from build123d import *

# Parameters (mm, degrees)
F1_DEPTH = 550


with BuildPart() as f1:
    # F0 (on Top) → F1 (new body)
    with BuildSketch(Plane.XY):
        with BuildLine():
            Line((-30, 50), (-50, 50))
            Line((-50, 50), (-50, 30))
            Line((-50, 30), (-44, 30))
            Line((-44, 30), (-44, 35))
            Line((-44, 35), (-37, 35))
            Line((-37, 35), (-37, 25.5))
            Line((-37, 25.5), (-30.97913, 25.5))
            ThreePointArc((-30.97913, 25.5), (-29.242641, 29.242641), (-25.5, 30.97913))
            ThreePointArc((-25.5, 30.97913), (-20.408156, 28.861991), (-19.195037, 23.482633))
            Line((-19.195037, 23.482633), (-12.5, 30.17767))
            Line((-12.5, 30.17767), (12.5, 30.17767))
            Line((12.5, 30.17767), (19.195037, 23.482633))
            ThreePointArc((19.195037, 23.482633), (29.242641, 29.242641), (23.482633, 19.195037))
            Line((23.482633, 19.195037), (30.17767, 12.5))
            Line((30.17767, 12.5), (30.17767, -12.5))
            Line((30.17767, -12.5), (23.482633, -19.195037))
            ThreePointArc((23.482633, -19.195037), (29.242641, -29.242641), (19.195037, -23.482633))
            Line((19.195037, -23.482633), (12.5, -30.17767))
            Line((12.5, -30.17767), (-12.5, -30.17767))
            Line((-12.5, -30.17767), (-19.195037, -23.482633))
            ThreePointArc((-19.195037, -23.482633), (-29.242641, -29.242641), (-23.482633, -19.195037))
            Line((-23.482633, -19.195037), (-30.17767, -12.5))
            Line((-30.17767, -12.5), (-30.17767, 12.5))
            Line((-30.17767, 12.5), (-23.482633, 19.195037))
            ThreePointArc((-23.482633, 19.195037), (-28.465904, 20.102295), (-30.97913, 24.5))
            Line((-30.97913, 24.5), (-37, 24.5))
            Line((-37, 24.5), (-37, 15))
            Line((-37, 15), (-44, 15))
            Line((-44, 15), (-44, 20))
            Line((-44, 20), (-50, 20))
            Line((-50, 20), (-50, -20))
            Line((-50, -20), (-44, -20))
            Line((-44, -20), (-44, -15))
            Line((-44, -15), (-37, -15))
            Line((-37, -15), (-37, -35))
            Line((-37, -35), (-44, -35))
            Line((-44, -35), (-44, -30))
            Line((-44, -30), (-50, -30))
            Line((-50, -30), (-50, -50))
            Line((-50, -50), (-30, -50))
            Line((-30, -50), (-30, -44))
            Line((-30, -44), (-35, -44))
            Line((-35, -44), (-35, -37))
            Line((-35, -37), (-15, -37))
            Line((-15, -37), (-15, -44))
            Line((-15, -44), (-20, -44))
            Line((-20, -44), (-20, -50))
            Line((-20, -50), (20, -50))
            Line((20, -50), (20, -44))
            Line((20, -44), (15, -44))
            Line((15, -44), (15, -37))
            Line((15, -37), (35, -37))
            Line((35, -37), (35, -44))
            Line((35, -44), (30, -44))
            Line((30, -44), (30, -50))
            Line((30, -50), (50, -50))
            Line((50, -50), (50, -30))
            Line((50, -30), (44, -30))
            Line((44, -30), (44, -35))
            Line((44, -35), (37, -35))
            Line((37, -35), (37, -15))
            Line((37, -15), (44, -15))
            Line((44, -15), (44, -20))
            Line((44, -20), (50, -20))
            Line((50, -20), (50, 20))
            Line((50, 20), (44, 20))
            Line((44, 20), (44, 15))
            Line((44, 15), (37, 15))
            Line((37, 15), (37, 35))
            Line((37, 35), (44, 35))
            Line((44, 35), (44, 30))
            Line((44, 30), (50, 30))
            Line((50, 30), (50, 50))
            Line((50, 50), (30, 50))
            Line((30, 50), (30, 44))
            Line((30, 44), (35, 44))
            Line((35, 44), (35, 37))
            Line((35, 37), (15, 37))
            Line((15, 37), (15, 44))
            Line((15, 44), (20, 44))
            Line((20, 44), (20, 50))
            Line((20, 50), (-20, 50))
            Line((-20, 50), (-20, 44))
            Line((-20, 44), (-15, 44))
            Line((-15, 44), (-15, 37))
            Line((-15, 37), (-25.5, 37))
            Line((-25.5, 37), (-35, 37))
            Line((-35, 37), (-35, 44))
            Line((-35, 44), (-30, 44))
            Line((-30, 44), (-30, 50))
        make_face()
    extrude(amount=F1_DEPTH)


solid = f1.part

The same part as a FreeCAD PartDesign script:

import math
import FreeCAD as App
import Part
import Sketcher
Q = App.Units.Quantity

doc = App.newDocument("Part")
body = doc.addObject("PartDesign::Body", "Body")

# Sketch on XY plane
sketch1 = body.newObject("Sketcher::SketchObject", "Sketch")
sketch1.AttachmentSupport = (doc.getObject("XY_Plane"), [""])
sketch1.MapMode = "FlatFace"
sketch1.addGeometry([
    Part.LineSegment(App.Vector(-30, 50, 0), App.Vector(-50, 50, 0)),  # 0
    Part.LineSegment(App.Vector(-50, 50, 0), App.Vector(-50, 30, 0)),  # 1
    Part.LineSegment(App.Vector(-50, 30, 0), App.Vector(-44, 30, 0)),  # 2
    Part.LineSegment(App.Vector(-44, 30, 0), App.Vector(-44, 35, 0)),  # 3
    Part.LineSegment(App.Vector(-44, 35, 0), App.Vector(-37, 35, 0)),  # 4
    Part.LineSegment(App.Vector(-37, 35, 0), App.Vector(-37, 26, 0)),  # 5
    Part.LineSegment(App.Vector(-37, 26, 0), App.Vector(-31, 26, 0)),  # 6
    Part.ArcOfCircle(Part.Circle(App.Vector(-25, 25, 0), App.Vector(0, 0, 1), 6), math.radians(95), math.radians(175)),  # 7
    Part.ArcOfCircle(Part.Circle(App.Vector(-25, 25, 0), App.Vector(0, 0, 1), 6), math.radians(-15), math.radians(95)),  # 8
    Part.LineSegment(App.Vector(-19, 23, 0), App.Vector(-12, 30, 0)),  # 9
    Part.LineSegment(App.Vector(-12, 30, 0), App.Vector(12, 30, 0)),  # 10
    Part.LineSegment(App.Vector(12, 30, 0), App.Vector(19, 23, 0)),  # 11
    Part.ArcOfCircle(Part.Circle(App.Vector(25, 25, 0), App.Vector(0, 0, 1), 6), math.radians(-105), math.radians(195)),  # 12
    Part.LineSegment(App.Vector(23, 19, 0), App.Vector(30, 12, 0)),  # 13
    Part.LineSegment(App.Vector(30, 12, 0), App.Vector(30, -12, 0)),  # 14
    Part.LineSegment(App.Vector(30, -12, 0), App.Vector(23, -19, 0)),  # 15
    Part.ArcOfCircle(Part.Circle(App.Vector(25, -25, 0), App.Vector(0, 0, 1), 6), math.radians(165), math.radians(465)),  # 16
    Part.LineSegment(App.Vector(19, -23, 0), App.Vector(12, -30, 0)),  # 17
    Part.LineSegment(App.Vector(12, -30, 0), App.Vector(-12, -30, 0)),  # 18
    Part.LineSegment(App.Vector(-12, -30, 0), App.Vector(-19, -23, 0)),  # 19
    Part.ArcOfCircle(Part.Circle(App.Vector(-25, -25, 0), App.Vector(0, 0, 1), 6), math.radians(75), math.radians(375)),  # 20
    Part.LineSegment(App.Vector(-23, -19, 0), App.Vector(-30, -12, 0)),  # 21
    Part.LineSegment(App.Vector(-30, -12, 0), App.Vector(-30, 12, 0)),  # 22
    Part.LineSegment(App.Vector(-30, 12, 0), App.Vector(-23, 19, 0)),  # 23
    Part.ArcOfCircle(Part.Circle(App.Vector(-25, 25, 0), App.Vector(0, 0, 1), 6), math.radians(-175), math.radians(-75)),  # 24
    Part.LineSegment(App.Vector(-31, 24, 0), App.Vector(-37, 24, 0)),  # 25
    Part.LineSegment(App.Vector(-37, 24, 0), App.Vector(-37, 15, 0)),  # 26
    Part.LineSegment(App.Vector(-37, 15, 0), App.Vector(-44, 15, 0)),  # 27
    Part.LineSegment(App.Vector(-44, 15, 0), App.Vector(-44, 20, 0)),  # 28
    Part.LineSegment(App.Vector(-44, 20, 0), App.Vector(-50, 20, 0)),  # 29
    Part.LineSegment(App.Vector(-50, 20, 0), App.Vector(-50, -20, 0)),  # 30
    Part.LineSegment(App.Vector(-50, -20, 0), App.Vector(-44, -20, 0)),  # 31
    Part.LineSegment(App.Vector(-44, -20, 0), App.Vector(-44, -15, 0)),  # 32
    Part.LineSegment(App.Vector(-44, -15, 0), App.Vector(-37, -15, 0)),  # 33
    Part.LineSegment(App.Vector(-37, -15, 0), App.Vector(-37, -35, 0)),  # 34
    Part.LineSegment(App.Vector(-37, -35, 0), App.Vector(-44, -35, 0)),  # 35
    Part.LineSegment(App.Vector(-44, -35, 0), App.Vector(-44, -30, 0)),  # 36
    Part.LineSegment(App.Vector(-44, -30, 0), App.Vector(-50, -30, 0)),  # 37
    Part.LineSegment(App.Vector(-50, -30, 0), App.Vector(-50, -50, 0)),  # 38
    Part.LineSegment(App.Vector(-50, -50, 0), App.Vector(-30, -50, 0)),  # 39
    Part.LineSegment(App.Vector(-30, -50, 0), App.Vector(-30, -44, 0)),  # 40
    Part.LineSegment(App.Vector(-30, -44, 0), App.Vector(-35, -44, 0)),  # 41
    Part.LineSegment(App.Vector(-35, -44, 0), App.Vector(-35, -37, 0)),  # 42
    Part.LineSegment(App.Vector(-35, -37, 0), App.Vector(-15, -37, 0)),  # 43
    Part.LineSegment(App.Vector(-15, -37, 0), App.Vector(-15, -44, 0)),  # 44
    Part.LineSegment(App.Vector(-15, -44, 0), App.Vector(-20, -44, 0)),  # 45
    Part.LineSegment(App.Vector(-20, -44, 0), App.Vector(-20, -50, 0)),  # 46
    Part.LineSegment(App.Vector(-20, -50, 0), App.Vector(20, -50, 0)),  # 47
    Part.LineSegment(App.Vector(20, -50, 0), App.Vector(20, -44, 0)),  # 48
    Part.LineSegment(App.Vector(20, -44, 0), App.Vector(15, -44, 0)),  # 49
    Part.LineSegment(App.Vector(15, -44, 0), App.Vector(15, -37, 0)),  # 50
    Part.LineSegment(App.Vector(15, -37, 0), App.Vector(35, -37, 0)),  # 51
    Part.LineSegment(App.Vector(35, -37, 0), App.Vector(35, -44, 0)),  # 52
    Part.LineSegment(App.Vector(35, -44, 0), App.Vector(30, -44, 0)),  # 53
    Part.LineSegment(App.Vector(30, -44, 0), App.Vector(30, -50, 0)),  # 54
    Part.LineSegment(App.Vector(30, -50, 0), App.Vector(50, -50, 0)),  # 55
    Part.LineSegment(App.Vector(50, -50, 0), App.Vector(50, -30, 0)),  # 56
    Part.LineSegment(App.Vector(50, -30, 0), App.Vector(44, -30, 0)),  # 57
    Part.LineSegment(App.Vector(44, -30, 0), App.Vector(44, -35, 0)),  # 58
    Part.LineSegment(App.Vector(44, -35, 0), App.Vector(37, -35, 0)),  # 59
    Part.LineSegment(App.Vector(37, -35, 0), App.Vector(37, -15, 0)),  # 60
    Part.LineSegment(App.Vector(37, -15, 0), App.Vector(44, -15, 0)),  # 61
    Part.LineSegment(App.Vector(44, -15, 0), App.Vector(44, -20, 0)),  # 62
    Part.LineSegment(App.Vector(44, -20, 0), App.Vector(50, -20, 0)),  # 63
    Part.LineSegment(App.Vector(50, -20, 0), App.Vector(50, 20, 0)),  # 64
    Part.LineSegment(App.Vector(50, 20, 0), App.Vector(44, 20, 0)),  # 65
    Part.LineSegment(App.Vector(44, 20, 0), App.Vector(44, 15, 0)),  # 66
    Part.LineSegment(App.Vector(44, 15, 0), App.Vector(37, 15, 0)),  # 67
    Part.LineSegment(App.Vector(37, 15, 0), App.Vector(37, 35, 0)),  # 68
    Part.LineSegment(App.Vector(37, 35, 0), App.Vector(44, 35, 0)),  # 69
    Part.LineSegment(App.Vector(44, 35, 0), App.Vector(44, 30, 0)),  # 70
    Part.LineSegment(App.Vector(44, 30, 0), App.Vector(50, 30, 0)),  # 71
    Part.LineSegment(App.Vector(50, 30, 0), App.Vector(50, 50, 0)),  # 72
    Part.LineSegment(App.Vector(50, 50, 0), App.Vector(30, 50, 0)),  # 73
    Part.LineSegment(App.Vector(30, 50, 0), App.Vector(30, 44, 0)),  # 74
    Part.LineSegment(App.Vector(30, 44, 0), App.Vector(35, 44, 0)),  # 75
    Part.LineSegment(App.Vector(35, 44, 0), App.Vector(35, 37, 0)),  # 76
    Part.LineSegment(App.Vector(35, 37, 0), App.Vector(15, 37, 0)),  # 77
    Part.LineSegment(App.Vector(15, 37, 0), App.Vector(15, 44, 0)),  # 78
    Part.LineSegment(App.Vector(15, 44, 0), App.Vector(20, 44, 0)),  # 79
    Part.LineSegment(App.Vector(20, 44, 0), App.Vector(20, 50, 0)),  # 80
    Part.LineSegment(App.Vector(20, 50, 0), App.Vector(-20, 50, 0)),  # 81
    Part.LineSegment(App.Vector(-20, 50, 0), App.Vector(-20, 44, 0)),  # 82
    Part.LineSegment(App.Vector(-20, 44, 0), App.Vector(-15, 44, 0)),  # 83
    Part.LineSegment(App.Vector(-15, 44, 0), App.Vector(-15, 37, 0)),  # 84
    Part.LineSegment(App.Vector(-15, 37, 0), App.Vector(-35, 37, 0)),  # 85
    Part.LineSegment(App.Vector(-35, 37, 0), App.Vector(-35, 44, 0)),  # 86
    Part.LineSegment(App.Vector(-35, 44, 0), App.Vector(-30, 44, 0)),  # 87
    Part.LineSegment(App.Vector(-30, 44, 0), App.Vector(-30, 50, 0)),  # 88
], False)
sketch1.addConstraint([
    Sketcher.Constraint("Coincident", 0, 2, 1, 1),
    Sketcher.Constraint("Coincident", 1, 2, 2, 1),
    Sketcher.Constraint("Coincident", 2, 2, 3, 1),
    Sketcher.Constraint("Coincident", 3, 2, 4, 1),
    Sketcher.Constraint("Coincident", 4, 2, 5, 1),
    Sketcher.Constraint("Coincident", 5, 2, 6, 1),
    Sketcher.Constraint("Coincident", 6, 2, 7, 2),
    Sketcher.Constraint("Tangent", 7, 1, 8, 2),
    Sketcher.Constraint("Coincident", 8, 1, 9, 1),
    Sketcher.Constraint("Coincident", 9, 2, 10, 1),
    Sketcher.Constraint("Coincident", 10, 2, 11, 1),
    Sketcher.Constraint("Coincident", 11, 2, 12, 2),
    Sketcher.Constraint("Coincident", 12, 1, 13, 1),
    Sketcher.Constraint("Coincident", 13, 2, 14, 1),
    Sketcher.Constraint("Coincident", 14, 2, 15, 1),
    Sketcher.Constraint("Coincident", 15, 2, 16, 2),
    Sketcher.Constraint("Coincident", 16, 1, 17, 1),
    Sketcher.Constraint("Coincident", 17, 2, 18, 1),
    Sketcher.Constraint("Coincident", 18, 2, 19, 1),
    Sketcher.Constraint("Coincident", 19, 2, 20, 2),
    Sketcher.Constraint("Coincident", 20, 1, 21, 1),
    Sketcher.Constraint("Coincident", 21, 2, 22, 1),
    Sketcher.Constraint("Coincident", 22, 2, 23, 1),
    Sketcher.Constraint("Coincident", 23, 2, 24, 2),
    Sketcher.Constraint("Coincident", 24, 1, 25, 1),
    Sketcher.Constraint("Coincident", 25, 2, 26, 1),
    Sketcher.Constraint("Coincident", 26, 2, 27, 1),
    Sketcher.Constraint("Coincident", 27, 2, 28, 1),
    Sketcher.Constraint("Coincident", 28, 2, 29, 1),
    Sketcher.Constraint("Coincident", 29, 2, 30, 1),
    Sketcher.Constraint("Coincident", 30, 2, 31, 1),
    Sketcher.Constraint("Coincident", 31, 2, 32, 1),
    Sketcher.Constraint("Coincident", 32, 2, 33, 1),
    Sketcher.Constraint("Coincident", 33, 2, 34, 1),
    Sketcher.Constraint("Coincident", 34, 2, 35, 1),
    Sketcher.Constraint("Coincident", 35, 2, 36, 1),
    Sketcher.Constraint("Coincident", 36, 2, 37, 1),
    Sketcher.Constraint("Coincident", 37, 2, 38, 1),
    Sketcher.Constraint("Coincident", 38, 2, 39, 1),
    Sketcher.Constraint("Coincident", 39, 2, 40, 1),
    Sketcher.Constraint("Coincident", 40, 2, 41, 1),
    Sketcher.Constraint("Coincident", 41, 2, 42, 1),
    Sketcher.Constraint("Coincident", 42, 2, 43, 1),
    Sketcher.Constraint("Coincident", 43, 2, 44, 1),
    Sketcher.Constraint("Coincident", 44, 2, 45, 1),
    Sketcher.Constraint("Coincident", 45, 2, 46, 1),
    Sketcher.Constraint("Coincident", 46, 2, 47, 1),
    Sketcher.Constraint("Coincident", 47, 2, 48, 1),
    Sketcher.Constraint("Coincident", 48, 2, 49, 1),
    Sketcher.Constraint("Coincident", 49, 2, 50, 1),
    Sketcher.Constraint("Coincident", 50, 2, 51, 1),
    Sketcher.Constraint("Coincident", 51, 2, 52, 1),
    Sketcher.Constraint("Coincident", 52, 2, 53, 1),
    Sketcher.Constraint("Coincident", 53, 2, 54, 1),
    Sketcher.Constraint("Coincident", 54, 2, 55, 1),
    Sketcher.Constraint("Coincident", 55, 2, 56, 1),
    Sketcher.Constraint("Coincident", 56, 2, 57, 1),
    Sketcher.Constraint("Coincident", 57, 2, 58, 1),
    Sketcher.Constraint("Coincident", 58, 2, 59, 1),
    Sketcher.Constraint("Coincident", 59, 2, 60, 1),
    Sketcher.Constraint("Coincident", 60, 2, 61, 1),
    Sketcher.Constraint("Coincident", 61, 2, 62, 1),
    Sketcher.Constraint("Coincident", 62, 2, 63, 1),
    Sketcher.Constraint("Coincident", 63, 2, 64, 1),
    Sketcher.Constraint("Coincident", 64, 2, 65, 1),
    Sketcher.Constraint("Coincident", 65, 2, 66, 1),
    Sketcher.Constraint("Coincident", 66, 2, 67, 1),
    Sketcher.Constraint("Coincident", 67, 2, 68, 1),
    Sketcher.Constraint("Coincident", 68, 2, 69, 1),
    Sketcher.Constraint("Coincident", 69, 2, 70, 1),
    Sketcher.Constraint("Coincident", 70, 2, 71, 1),
    Sketcher.Constraint("Coincident", 71, 2, 72, 1),
    Sketcher.Constraint("Coincident", 72, 2, 73, 1),
    Sketcher.Constraint("Coincident", 73, 2, 74, 1),
    Sketcher.Constraint("Coincident", 74, 2, 75, 1),
    Sketcher.Constraint("Coincident", 75, 2, 76, 1),
    Sketcher.Constraint("Coincident", 76, 2, 77, 1),
    Sketcher.Constraint("Coincident", 77, 2, 78, 1),
    Sketcher.Constraint("Coincident", 78, 2, 79, 1),
    Sketcher.Constraint("Coincident", 79, 2, 80, 1),
    Sketcher.Constraint("Coincident", 80, 2, 81, 1),
    Sketcher.Constraint("Coincident", 81, 2, 82, 1),
    Sketcher.Constraint("Coincident", 82, 2, 83, 1),
    Sketcher.Constraint("Coincident", 83, 2, 84, 1),
    Sketcher.Constraint("Coincident", 84, 2, 85, 1),
    Sketcher.Constraint("Coincident", 85, 2, 86, 1),
    Sketcher.Constraint("Coincident", 86, 2, 87, 1),
    Sketcher.Constraint("Coincident", 87, 2, 88, 1),
    Sketcher.Constraint("Coincident", 88, 2, 0, 1),
    Sketcher.Constraint("Horizontal", 0),
    Sketcher.Constraint("Vertical", 1),
    Sketcher.Constraint("Horizontal", 2),
    Sketcher.Constraint("Vertical", 3),
    Sketcher.Constraint("Horizontal", 4),
    Sketcher.Constraint("Vertical", 5),
    Sketcher.Constraint("Horizontal", 6),
    Sketcher.Constraint("Horizontal", 10),
    Sketcher.Constraint("Vertical", 14),
    Sketcher.Constraint("Horizontal", 18),
    Sketcher.Constraint("Vertical", 22),
    Sketcher.Constraint("Horizontal", 25),
    Sketcher.Constraint("Vertical", 26),
    Sketcher.Constraint("Horizontal", 27),
    Sketcher.Constraint("Vertical", 28),
    Sketcher.Constraint("Horizontal", 29),
    Sketcher.Constraint("Vertical", 30),
    Sketcher.Constraint("Horizontal", 31),
    Sketcher.Constraint("Vertical", 32),
    Sketcher.Constraint("Horizontal", 33),
    Sketcher.Constraint("Vertical", 34),
    Sketcher.Constraint("Horizontal", 35),
    Sketcher.Constraint("Vertical", 36),
    Sketcher.Constraint("Horizontal", 37),
    Sketcher.Constraint("Vertical", 38),
    Sketcher.Constraint("Horizontal", 39),
    Sketcher.Constraint("Vertical", 40),
    Sketcher.Constraint("Horizontal", 41),
    Sketcher.Constraint("Vertical", 42),
    Sketcher.Constraint("Horizontal", 43),
    Sketcher.Constraint("Vertical", 44),
    Sketcher.Constraint("Horizontal", 45),
    Sketcher.Constraint("Vertical", 46),
    Sketcher.Constraint("Horizontal", 47),
    Sketcher.Constraint("Vertical", 48),
    Sketcher.Constraint("Horizontal", 49),
    Sketcher.Constraint("Vertical", 50),
    Sketcher.Constraint("Horizontal", 51),
    Sketcher.Constraint("Vertical", 52),
    Sketcher.Constraint("Horizontal", 53),
    Sketcher.Constraint("Vertical", 54),
    Sketcher.Constraint("Horizontal", 55),
    Sketcher.Constraint("Vertical", 56),
    Sketcher.Constraint("Horizontal", 57),
    Sketcher.Constraint("Vertical", 58),
    Sketcher.Constraint("Horizontal", 59),
    Sketcher.Constraint("Vertical", 60),
    Sketcher.Constraint("Horizontal", 61),
    Sketcher.Constraint("Vertical", 62),
    Sketcher.Constraint("Horizontal", 63),
    Sketcher.Constraint("Vertical", 64),
    Sketcher.Constraint("Horizontal", 65),
    Sketcher.Constraint("Vertical", 66),
    Sketcher.Constraint("Horizontal", 67),
    Sketcher.Constraint("Vertical", 68),
    Sketcher.Constraint("Horizontal", 69),
    Sketcher.Constraint("Vertical", 70),
    Sketcher.Constraint("Horizontal", 71),
    Sketcher.Constraint("Vertical", 72),
    Sketcher.Constraint("Horizontal", 73),
    Sketcher.Constraint("Vertical", 74),
    Sketcher.Constraint("Horizontal", 75),
    Sketcher.Constraint("Vertical", 76),
    Sketcher.Constraint("Horizontal", 77),
    Sketcher.Constraint("Vertical", 78),
    Sketcher.Constraint("Horizontal", 79),
    Sketcher.Constraint("Vertical", 80),
    Sketcher.Constraint("Horizontal", 81),
    Sketcher.Constraint("Vertical", 82),
    Sketcher.Constraint("Horizontal", 83),
    Sketcher.Constraint("Vertical", 84),
    Sketcher.Constraint("Horizontal", 85),
    Sketcher.Constraint("Vertical", 86),
    Sketcher.Constraint("Horizontal", 87),
    Sketcher.Constraint("Vertical", 88),
    Sketcher.Constraint("Coincident", 24, 3, 7, 3),
    Sketcher.Constraint("Equal", 7, 8),
    Sketcher.Constraint("Equal", 8, 12),
    Sketcher.Constraint("Equal", 12, 16),
    Sketcher.Constraint("Equal", 16, 20),
    Sketcher.Constraint("Equal", 20, 24),
    Sketcher.Constraint("Symmetric", 7, 3, 16, 3, -1, 1),
    Sketcher.Constraint("Symmetric", 12, 3, 20, 3, -1, 1),
    Sketcher.Constraint("Symmetric", 9, 2, 17, 2, -1, 1),
    Sketcher.Constraint("Symmetric", 13, 2, 21, 2, -1, 1),
    Sketcher.Constraint("Symmetric", 0, 2, 55, 2, -1, 1),
    Sketcher.Constraint("Symmetric", 2, 2, 57, 2, -1, 1),
    Sketcher.Constraint("Symmetric", 4, 2, 59, 2, -1, 1),
    Sketcher.Constraint("Symmetric", 26, 2, 60, 2, -1, 1),
    Sketcher.Constraint("Symmetric", 28, 2, 62, 2, -1, 1),
    Sketcher.Constraint("Symmetric", 30, 2, 64, 2, -1, 1),
    Sketcher.Constraint("Symmetric", 32, 2, 66, 2, -1, 1),
    Sketcher.Constraint("Symmetric", 34, 2, 68, 2, -1, 1),
    Sketcher.Constraint("Symmetric", 36, 2, 70, 2, -1, 1),
    Sketcher.Constraint("Symmetric", 38, 2, 72, 2, -1, 1),
    Sketcher.Constraint("Symmetric", 40, 2, 74, 2, -1, 1),
    Sketcher.Constraint("Symmetric", 42, 2, 76, 2, -1, 1),
    Sketcher.Constraint("Symmetric", 44, 2, 78, 2, -1, 1),
    Sketcher.Constraint("Symmetric", 46, 2, 80, 2, -1, 1),
    Sketcher.Constraint("Symmetric", 48, 2, 82, 2, -1, 1),
    Sketcher.Constraint("Symmetric", 50, 2, 84, 2, -1, 1),
    Sketcher.Constraint("Symmetric", 52, 2, 86, 2, -1, 1),
    Sketcher.Constraint("Symmetric", 7, 3, 12, 3, -2),
    Sketcher.Constraint("Symmetric", 45, 2, 48, 2, -2),
    Sketcher.Constraint("Symmetric", 43, 2, 50, 2, -2),
    Sketcher.Constraint("Symmetric", 41, 2, 52, 2, -2),
    Sketcher.Constraint("Symmetric", 39, 2, 54, 2, -2),
    Sketcher.Constraint("Symmetric", 37, 2, 56, 2, -2),
    Sketcher.Constraint("Symmetric", 35, 2, 58, 2, -2),
    Sketcher.Constraint("Symmetric", 33, 2, 60, 2, -2),
    Sketcher.Constraint("Symmetric", 31, 2, 62, 2, -2),
    Sketcher.Constraint("Perpendicular", 9, 11),
    Sketcher.Constraint("Parallel", 11, 13),
    Sketcher.Constraint("Perpendicular", 13, 15),
    Sketcher.Constraint("Parallel", 15, 17),
    Sketcher.Constraint("Perpendicular", 17, 19),
    Sketcher.Constraint("Parallel", 19, 21),
    Sketcher.Constraint("Perpendicular", 21, 23),
    Sketcher.Constraint("Horizontal", 8, 1, 11, 2),
    Sketcher.Constraint("Horizontal", 16, 1, 19, 2),
    Sketcher.Constraint("Horizontal", 15, 2, 20, 1),
    Sketcher.Constraint("Horizontal", 14, 2, 21, 2),
    Sketcher.Constraint("Horizontal", 13, 2, 22, 2),
    Sketcher.Constraint("Horizontal", 41, 2, 44, 2),
    Sketcher.Constraint("Horizontal", 39, 2, 46, 2),
    Sketcher.Constraint("Vertical", 6, 2, 24, 1),
    Sketcher.Constraint("Vertical", 3, 2, 27, 2),
    Sketcher.Constraint("Vertical", 1, 2, 29, 2),
    Sketcher.Constraint("Vertical", 40, 2, 87, 2),
    Sketcher.Constraint("Equal", 39, 43),
    Sketcher.Constraint("Equal", 41, 45),
    Sketcher.Constraint("Equal", 85, 1),
    Sketcher.Constraint("Equal", 87, 3),
    Sketcher.Constraint("Equal", 18, 14),
    Sketcher.Constraint("Equal", 5, 26),
    Sketcher.Constraint("Equal", 3, 28),
    Sketcher.Constraint("Equal", 81, 30),
    Sketcher.Constraint("Equal", 1, 34),
    Sketcher.Constraint("Equal", 71, 40),
    Sketcher.Constraint("Equal", 69, 42),
    Sketcher.Constraint("Equal", 11, 13),
    Sketcher.Constraint("Radius", 8, Q("5.999999 mm")),
    Sketcher.Constraint("DistanceX", 0, 2, 0, 1, Q("20 mm")),
    Sketcher.Constraint("DistanceX", 2, 1, 2, 2, Q("6 mm")),
    Sketcher.Constraint("DistanceX", 4, 1, 4, 2, Q("7 mm")),
    Sketcher.Constraint("DistanceX", 10, 1, 10, 2, Q("25 mm")),
    Sketcher.Constraint("DistanceX", 41, 2, 41, 1, Q("5 mm")),
    Sketcher.Constraint("DistanceX", 47, 1, 47, 2, Q("40 mm")),
    Sketcher.Constraint("DistanceY", 5, 2, 5, 1, Q("9.5 mm")),
    Sketcher.Constraint("DistanceX", 8, 3, -1, 1, Q("24.999999 mm")),
    Sketcher.Constraint("DistanceX", 7, 1, -1, 1, Q("25.5 mm")),
    Sketcher.Constraint("DistanceY", -1, 1, 9, 2, Q("30.17767 mm")),
])
pad1 = body.newObject("PartDesign::Pad", "Pad")
pad1.Profile = sketch1
pad1.Length = 550

doc.recompute()
